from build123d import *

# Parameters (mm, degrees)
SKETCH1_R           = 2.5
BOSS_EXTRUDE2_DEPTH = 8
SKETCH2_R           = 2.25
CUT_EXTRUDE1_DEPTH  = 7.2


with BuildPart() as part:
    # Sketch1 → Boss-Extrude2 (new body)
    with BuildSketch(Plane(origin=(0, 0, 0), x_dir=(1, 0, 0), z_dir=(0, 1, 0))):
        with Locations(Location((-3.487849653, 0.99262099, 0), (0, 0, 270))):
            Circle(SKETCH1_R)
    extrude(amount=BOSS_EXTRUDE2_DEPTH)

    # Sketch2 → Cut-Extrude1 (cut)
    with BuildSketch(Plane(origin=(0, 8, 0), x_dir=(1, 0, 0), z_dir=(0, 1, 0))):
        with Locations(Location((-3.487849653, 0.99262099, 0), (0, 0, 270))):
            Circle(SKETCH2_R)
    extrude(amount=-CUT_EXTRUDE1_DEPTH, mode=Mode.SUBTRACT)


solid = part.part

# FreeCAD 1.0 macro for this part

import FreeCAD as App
import Part
import Sketcher

V = App.Vector

doc = App.newDocument("Part")
body = doc.addObject("PartDesign::Body", "Body")

sketch1 = doc.addObject("Sketcher::SketchObject", "Sketch")
body.addObject(sketch1)
sketch1.AttachmentSupport = (doc.XZ_Plane, [""])
sketch1.MapMode = "FlatFace"
sketch1.addGeometry(Part.Circle(V(-3.5, -1, 0), V(0, 0, 1), 2.5), False)
sketch1.addConstraint(Sketcher.Constraint("Diameter", 0, 5.0))
sketch1.addConstraint(Sketcher.Constraint("DistanceX", 0, 3, -1, 1, 3.48785))
sketch1.addConstraint(Sketcher.Constraint("DistanceY", 0, 3, -1, 1, 0.992621))
pad1 = doc.addObject("PartDesign::Pad", "Pad")
body.addObject(pad1)
pad1.Profile = sketch1
pad1.Length = 8
pad1.Reversed = True

sketch2 = doc.addObject("Sketcher::SketchObject", "Sketch001")
body.addObject(sketch2)
sketch2.AttachmentSupport = (doc.XZ_Plane, [""])
sketch2.MapMode = "FlatFace"
sketch2.AttachmentOffset = App.Placement(V(0, 0, -8), App.Rotation())
sketch2.addGeometry(Part.Circle(V(-3.5, -1, 0), V(0, 0, 1), 2.2), False)
sketch2.addConstraint(Sketcher.Constraint("Diameter", 0, 4.5))
sketch2.addConstraint(Sketcher.Constraint("DistanceX", 0, 3, -1, 1, 3.48785))
sketch2.addConstraint(Sketcher.Constraint("DistanceY", 0, 3, -1, 1, 0.992621))
pocket1 = doc.addObject("PartDesign::Pocket", "Pocket")
body.addObject(pocket1)
pocket1.Profile = sketch2
pocket1.Length = 7.2
pocket1.Reversed = True

doc.recompute()
